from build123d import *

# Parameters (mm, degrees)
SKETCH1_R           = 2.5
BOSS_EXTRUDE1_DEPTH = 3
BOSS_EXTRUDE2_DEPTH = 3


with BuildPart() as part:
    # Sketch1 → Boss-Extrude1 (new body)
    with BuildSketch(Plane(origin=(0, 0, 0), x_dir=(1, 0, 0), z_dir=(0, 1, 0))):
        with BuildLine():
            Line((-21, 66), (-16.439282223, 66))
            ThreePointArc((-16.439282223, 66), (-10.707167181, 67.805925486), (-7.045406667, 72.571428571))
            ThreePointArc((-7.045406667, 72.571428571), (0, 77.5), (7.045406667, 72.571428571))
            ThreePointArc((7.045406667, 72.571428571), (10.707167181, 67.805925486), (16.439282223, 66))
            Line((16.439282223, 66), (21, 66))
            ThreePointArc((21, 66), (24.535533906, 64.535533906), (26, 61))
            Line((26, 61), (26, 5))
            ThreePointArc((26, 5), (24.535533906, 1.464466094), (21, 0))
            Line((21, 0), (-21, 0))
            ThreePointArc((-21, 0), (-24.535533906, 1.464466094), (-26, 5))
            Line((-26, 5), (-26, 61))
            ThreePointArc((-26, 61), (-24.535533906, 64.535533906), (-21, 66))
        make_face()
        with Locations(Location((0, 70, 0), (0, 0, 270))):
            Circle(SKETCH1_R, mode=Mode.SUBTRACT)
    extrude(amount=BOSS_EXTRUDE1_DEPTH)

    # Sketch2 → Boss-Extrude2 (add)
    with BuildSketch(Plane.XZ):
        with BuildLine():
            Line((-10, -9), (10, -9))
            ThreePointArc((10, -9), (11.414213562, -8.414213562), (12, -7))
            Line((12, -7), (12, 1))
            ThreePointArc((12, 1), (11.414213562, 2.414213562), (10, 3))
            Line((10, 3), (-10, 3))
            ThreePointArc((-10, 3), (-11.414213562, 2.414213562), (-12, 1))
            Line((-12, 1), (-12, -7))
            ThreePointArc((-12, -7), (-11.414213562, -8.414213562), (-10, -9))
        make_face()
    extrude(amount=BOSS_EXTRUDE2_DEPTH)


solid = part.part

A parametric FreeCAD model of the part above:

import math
import FreeCAD as App
import Part
import Sketcher

doc = App.newDocument("Part")
body = doc.addObject("PartDesign::Body", "Body")

# Sketch on XZ plane
sketch1 = body.newObject("Sketcher::SketchObject", "Sketch")
sketch1.AttachmentSupport = (doc.getObject("XZ_Plane"), [""])
sketch1.MapMode = "FlatFace"
sketch1.addGeometry([
    Part.LineSegment(App.Vector(-16.4, -66, 0), App.Vector(-21, -66, 0)),  # 0
    Part.ArcOfCircle(Part.Circle(App.Vector(-21, -61, 0), App.Vector(0, 0, 1), 5), math.radians(180), math.radians(270)),  # 1
    Part.LineSegment(App.Vector(-26, -61, 0), App.Vector(-26, -5, 0)),  # 2
    Part.ArcOfCircle(Part.Circle(App.Vector(-21, -5, 0), App.Vector(0, 0, 1), 5), math.radians(90), math.radians(180)),  # 3
    Part.LineSegment(App.Vector(-21, 0, 0), App.Vector(21, 0, 0)),  # 4
    Part.ArcOfCircle(Part.Circle(App.Vector(21, -5, 0), App.Vector(0, 0, 1), 5), math.radians(0), math.radians(90)),  # 5
    Part.LineSegment(App.Vector(26, -5, 0), App.Vector(26, -61, 0)),  # 6
    Part.ArcOfCircle(Part.Circle(App.Vector(21, -61, 0), App.Vector(0, 0, 1), 5), math.radians(-90), math.radians(0)),  # 7
    Part.LineSegment(App.Vector(21, -66, 0), App.Vector(16.4, -66, 0)),  # 8
    Part.ArcOfCircle(Part.Circle(App.Vector(16.4, -76, 0), App.Vector(0, 0, 1), 10), math.radians(90), math.radians(160)),  # 9
    Part.ArcOfCircle(Part.Circle(App.Vector(0, -70, 0), App.Vector(0, 0, 1), 7.5), math.radians(-160), math.radians(-20)),  # 10
    Part.ArcOfCircle(Part.Circle(App.Vector(-16.4, -76, 0), App.Vector(0, 0, 1), 10), math.radians(20), math.radians(90)),  # 11
    Part.Circle(App.Vector(0, -70, 0), App.Vector(0, 0, 1), 2.5),  # 12
], False)
sketch1.addConstraint([
    Sketcher.Constraint("Tangent", 0, 2, 1, 2),
    Sketcher.Constraint("Tangent", 1, 1, 2, 1),
    Sketcher.Constraint("Tangent", 2, 2, 3, 2),
    Sketcher.Constraint("Tangent", 3, 1, 4, 1),
    Sketcher.Constraint("Tangent", 4, 2, 5, 2),
    Sketcher.Constraint("Tangent", 5, 1, 6, 1),
    Sketcher.Constraint("Tangent", 6, 2, 7, 2),
    Sketcher.Constraint("Tangent", 7, 1, 8, 1),
    Sketcher.Constraint("Tangent", 8, 2, 9, 1),
    Sketcher.Constraint("Tangent", 9, 2, 10, 2),
    Sketcher.Constraint("Tangent", 10, 1, 11, 1),
    Sketcher.Constraint("Tangent", 11, 2, 0, 1),
    Sketcher.Constraint("Horizontal", 0),
    Sketcher.Constraint("Vertical", 2),
    Sketcher.Constraint("Horizontal", 4),
    Sketcher.Constraint("Vertical", 6),
    Sketcher.Constraint("Horizontal", 8),
    Sketcher.Constraint("Coincident", 12, 3, 10, 3),
    Sketcher.Constraint("Equal", 1, 3),
    Sketcher.Constraint("Equal", 3, 5),
    Sketcher.Constraint("Equal", 5, 7),
    Sketcher.Constraint("Equal", 9, 11),
    Sketcher.Constraint("Symmetric", 3, 1, 4, 2, -1, 1),
    Sketcher.Constraint("Symmetric", 9, 3, 11, 3, -2),
    Sketcher.Constraint("Diameter", 12, 5.0),
    Sketcher.Constraint("Radius", 1, 5.0),
    Sketcher.Constraint("Radius", 9, 10.0),
    Sketcher.Constraint("Radius", 10, 7.5),
    Sketcher.Constraint("DistanceX", 4, 1, 4, 2, 42.0),
    Sketcher.Constraint("DistanceY", 2, 1, 2, 2, 56.0),
    Sketcher.Constraint("DistanceY", 10, 3, -1, 1, 70.0),
])
pad1 = body.newObject("PartDesign::Pad", "Pad")
pad1.Profile = sketch1
pad1.Length = 3
pad1.Reversed = True

# Sketch on XZ plane
sketch2 = body.newObject("Sketcher::SketchObject", "Sketch001")
sketch2.AttachmentSupport = (doc.getObject("XZ_Plane"), [""])
sketch2.MapMode = "FlatFace"
sketch2.addGeometry([
    Part.LineSegment(App.Vector(-10, -9, 0), App.Vector(10, -9, 0)),  # 0
    Part.ArcOfCircle(Part.Circle(App.Vector(10, -7, 0), App.Vector(0, 0, 1), 2), math.radians(-90), math.radians(0)),  # 1
    Part.LineSegment(App.Vector(12, -7, 0), App.Vector(12, 1, 0)),  # 2
    Part.ArcOfCircle(Part.Circle(App.Vector(10, 1, 0), App.Vector(0, 0, 1), 2), math.radians(0), math.radians(90)),  # 3
    Part.LineSegment(App.Vector(10, 3, 0), App.Vector(-10, 3, 0)),  # 4
    Part.ArcOfCircle(Part.Circle(App.Vector(-10, 1, 0), App.Vector(0, 0, 1), 2), math.radians(90), math.radians(180)),  # 5
    Part.LineSegment(App.Vector(-12, 1, 0), App.Vector(-12, -7, 0)),  # 6
    Part.ArcOfCircle(Part.Circle(App.Vector(-10, -7, 0), App.Vector(0, 0, 1), 2), math.radians(-180), math.radians(-90)),  # 7
], False)
sketch2.addConstraint([
    Sketcher.Constraint("Tangent", 0, 2, 1, 1),
    Sketcher.Constraint("Tangent", 1, 2, 2, 1),
    Sketcher.Constraint("Tangent", 2, 2, 3, 1),
    Sketcher.Constraint("Tangent", 3, 2, 4, 1),
    Sketcher.Constraint("Tangent", 4, 2, 5, 1),
    Sketcher.Constraint("Tangent", 5, 2, 6, 1),
    Sketcher.Constraint("Tangent", 6, 2, 7, 1),
    Sketcher.Constraint("Tangent", 7, 2, 0, 1),
    Sketcher.Constraint("Horizontal", 0),
    Sketcher.Constraint("Vertical", 2),
    Sketcher.Constraint("Horizontal", 4),
    Sketcher.Constraint("Vertical", 6),
    Sketcher.Constraint("Equal", 1, 3),
    Sketcher.Constraint("Equal", 3, 5),
    Sketcher.Constraint("Equal", 5, 7),
    Sketcher.Constraint("Radius", 1, 2.0),
    Sketcher.Constraint("DistanceX", 0, 1, 0, 2, 20.0),
    Sketcher.Constraint("DistanceY", 2, 1, 2, 2, 8.0),
    Sketcher.Constraint("DistanceX", -1, 1, 1, 3, 10.0),
    Sketcher.Constraint("DistanceY", 1, 3, -1, 1, 7.0),
])
pad2 = body.newObject("PartDesign::Pad", "Pad001")
pad2.Profile = sketch2
pad2.Length = 3

doc.recompute()
